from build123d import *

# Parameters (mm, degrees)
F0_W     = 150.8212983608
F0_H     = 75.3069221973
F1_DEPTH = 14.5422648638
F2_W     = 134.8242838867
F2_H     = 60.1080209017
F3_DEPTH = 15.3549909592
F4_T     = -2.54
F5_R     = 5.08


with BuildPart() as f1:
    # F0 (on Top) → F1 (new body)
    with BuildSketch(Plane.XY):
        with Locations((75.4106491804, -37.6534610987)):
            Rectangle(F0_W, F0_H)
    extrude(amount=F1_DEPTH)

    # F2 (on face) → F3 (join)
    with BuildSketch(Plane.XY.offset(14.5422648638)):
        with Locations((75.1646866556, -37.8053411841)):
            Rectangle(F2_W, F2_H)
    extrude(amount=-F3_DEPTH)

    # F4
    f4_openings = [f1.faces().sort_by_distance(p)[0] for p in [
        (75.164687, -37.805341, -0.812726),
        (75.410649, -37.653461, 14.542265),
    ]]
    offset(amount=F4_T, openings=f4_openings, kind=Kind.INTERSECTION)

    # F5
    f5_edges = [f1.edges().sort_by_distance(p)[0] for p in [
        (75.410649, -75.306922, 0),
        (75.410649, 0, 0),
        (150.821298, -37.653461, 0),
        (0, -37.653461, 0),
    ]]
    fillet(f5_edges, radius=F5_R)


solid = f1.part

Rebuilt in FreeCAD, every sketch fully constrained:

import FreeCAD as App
import Part
import Sketcher
Q = App.Units.Quantity


def edges_at(feature, points):
    """Names of the edges that pass closest to the given points."""
    edges = feature.Shape.Edges
    near = lambda p: min(range(len(edges)), key=lambda i: edges[i].distToShape(Part.Vertex(*p))[0])
    return sorted({f"Edge{near(p) + 1}" for p in points})


def faces_at(feature, points):
    """Names of the faces that lie closest to the given points."""
    faces = feature.Shape.Faces
    near = lambda p: min(range(len(faces)), key=lambda i: faces[i].distToShape(Part.Vertex(*p))[0])
    return sorted({f"Face{near(p) + 1}" for p in points})

doc = App.newDocument("Part")
body = doc.addObject("PartDesign::Body", "Body")

# Sketch on XY plane
sketch1 = body.newObject("Sketcher::SketchObject", "Sketch")
sketch1.AttachmentSupport = (doc.getObject("XY_Plane"), [""])
sketch1.MapMode = "FlatFace"
sketch1.addGeometry(Part.LineSegment(App.Vector(0, 0, 0), App.Vector(0, -75, 0)), False)
sketch1.addGeometry(Part.LineSegment(App.Vector(0, -75, 0), App.Vector(151, -75, 0)), False)
sketch1.addGeometry(Part.LineSegment(App.Vector(151, -75, 0), App.Vector(151, 0, 0)), False)
sketch1.addGeometry(Part.LineSegment(App.Vector(151, 0, 0), App.Vector(0, 0, 0)), False)
sketch1.addConstraint(Sketcher.Constraint("Coincident", 0, 2, 1, 1))
sketch1.addConstraint(Sketcher.Constraint("Coincident", 1, 2, 2, 1))
sketch1.addConstraint(Sketcher.Constraint("Coincident", 2, 2, 3, 1))
sketch1.addConstraint(Sketcher.Constraint("Coincident", 3, 2, 0, 1))
sketch1.addConstraint(Sketcher.Constraint("Vertical", 0))
sketch1.addConstraint(Sketcher.Constraint("Horizontal", 1))
sketch1.addConstraint(Sketcher.Constraint("Vertical", 2))
sketch1.addConstraint(Sketcher.Constraint("Horizontal", 3))
sketch1.addConstraint(Sketcher.Constraint("Coincident", 3, 2, -1, 1))
sketch1.addConstraint(Sketcher.Constraint("DistanceX", 1, 1, 1, 2, 150.821298))
sketch1.addConstraint(Sketcher.Constraint("DistanceY", 0, 2, 0, 1, 75.306922))
pad1 = body.newObject("PartDesign::Pad", "Pad")
pad1.Profile = sketch1
pad1.Length = 14.542265

# Sketch on XY plane
sketch2 = body.newObject("Sketcher::SketchObject", "Sketch001")
sketch2.AttachmentSupport = (doc.getObject("XY_Plane"), [""])
sketch2.MapMode = "FlatFace"
sketch2.AttachmentOffset = App.Placement(App.Vector(0, 0, 14.542265), App.Rotation())
sketch2.addGeometry(Part.LineSegment(App.Vector(8, -8, 0), App.Vector(8, -68, 0)), False)
sketch2.addGeometry(Part.LineSegment(App.Vector(8, -68, 0), App.Vector(143, -68, 0)), False)
sketch2.addGeometry(Part.LineSegment(App.Vector(143, -68, 0), App.Vector(143, -8, 0)), False)
sketch2.addGeometry(Part.LineSegment(App.Vector(143, -8, 0), App.Vector(8, -8, 0)), False)
sketch2.addConstraint(Sketcher.Constraint("Coincident", 0, 2, 1, 1))
sketch2.addConstraint(Sketcher.Constraint("Coincident", 1, 2, 2, 1))
sketch2.addConstraint(Sketcher.Constraint("Coincident", 2, 2, 3, 1))
sketch2.addConstraint(Sketcher.Constraint("Coincident", 3, 2, 0, 1))
sketch2.addConstraint(Sketcher.Constraint("Vertical", 0))
sketch2.addConstraint(Sketcher.Constraint("Horizontal", 1))
sketch2.addConstraint(Sketcher.Constraint("Vertical", 2))
sketch2.addConstraint(Sketcher.Constraint("Horizontal", 3))
sketch2.addConstraint(Sketcher.Constraint("DistanceY", 0, 2, 0, 1, 60.108021))
sketch2.addConstraint(Sketcher.Constraint("DistanceX", 1, 1, 1, 2, 134.824284))
sketch2.addConstraint(Sketcher.Constraint("DistanceY", 0, 2, -1, 1, 67.859352))
sketch2.addConstraint(Sketcher.Constraint("DistanceX", -1, 1, 1, 2, 142.576829))
pad2 = body.newObject("PartDesign::Pad", "Pad001")
pad2.Profile = sketch2
pad2.Length = 15.354991
pad2.Reversed = True
doc.recompute()

thickness = body.newObject("PartDesign::Thickness", "Thickness")
thickness.Base = (pad2, faces_at(pad2, [(75.165, -37.805, -0.813), (75.411, -37.653, 14.542)]))
thickness.Value = Q("0.1 in")
thickness.Reversed = True
thickness.Join = "Intersection"
doc.recompute()

fillet = body.newObject("PartDesign::Fillet", "Fillet")
fillet.Base = (thickness, edges_at(thickness, [
    (75.411, -75.307, 0),
    (75.411, 0, 0),
    (150.821, -37.653, 0),
    (0, -37.653, 0),
]))
fillet.Radius = Q("0.2 in")

doc.recompute()
